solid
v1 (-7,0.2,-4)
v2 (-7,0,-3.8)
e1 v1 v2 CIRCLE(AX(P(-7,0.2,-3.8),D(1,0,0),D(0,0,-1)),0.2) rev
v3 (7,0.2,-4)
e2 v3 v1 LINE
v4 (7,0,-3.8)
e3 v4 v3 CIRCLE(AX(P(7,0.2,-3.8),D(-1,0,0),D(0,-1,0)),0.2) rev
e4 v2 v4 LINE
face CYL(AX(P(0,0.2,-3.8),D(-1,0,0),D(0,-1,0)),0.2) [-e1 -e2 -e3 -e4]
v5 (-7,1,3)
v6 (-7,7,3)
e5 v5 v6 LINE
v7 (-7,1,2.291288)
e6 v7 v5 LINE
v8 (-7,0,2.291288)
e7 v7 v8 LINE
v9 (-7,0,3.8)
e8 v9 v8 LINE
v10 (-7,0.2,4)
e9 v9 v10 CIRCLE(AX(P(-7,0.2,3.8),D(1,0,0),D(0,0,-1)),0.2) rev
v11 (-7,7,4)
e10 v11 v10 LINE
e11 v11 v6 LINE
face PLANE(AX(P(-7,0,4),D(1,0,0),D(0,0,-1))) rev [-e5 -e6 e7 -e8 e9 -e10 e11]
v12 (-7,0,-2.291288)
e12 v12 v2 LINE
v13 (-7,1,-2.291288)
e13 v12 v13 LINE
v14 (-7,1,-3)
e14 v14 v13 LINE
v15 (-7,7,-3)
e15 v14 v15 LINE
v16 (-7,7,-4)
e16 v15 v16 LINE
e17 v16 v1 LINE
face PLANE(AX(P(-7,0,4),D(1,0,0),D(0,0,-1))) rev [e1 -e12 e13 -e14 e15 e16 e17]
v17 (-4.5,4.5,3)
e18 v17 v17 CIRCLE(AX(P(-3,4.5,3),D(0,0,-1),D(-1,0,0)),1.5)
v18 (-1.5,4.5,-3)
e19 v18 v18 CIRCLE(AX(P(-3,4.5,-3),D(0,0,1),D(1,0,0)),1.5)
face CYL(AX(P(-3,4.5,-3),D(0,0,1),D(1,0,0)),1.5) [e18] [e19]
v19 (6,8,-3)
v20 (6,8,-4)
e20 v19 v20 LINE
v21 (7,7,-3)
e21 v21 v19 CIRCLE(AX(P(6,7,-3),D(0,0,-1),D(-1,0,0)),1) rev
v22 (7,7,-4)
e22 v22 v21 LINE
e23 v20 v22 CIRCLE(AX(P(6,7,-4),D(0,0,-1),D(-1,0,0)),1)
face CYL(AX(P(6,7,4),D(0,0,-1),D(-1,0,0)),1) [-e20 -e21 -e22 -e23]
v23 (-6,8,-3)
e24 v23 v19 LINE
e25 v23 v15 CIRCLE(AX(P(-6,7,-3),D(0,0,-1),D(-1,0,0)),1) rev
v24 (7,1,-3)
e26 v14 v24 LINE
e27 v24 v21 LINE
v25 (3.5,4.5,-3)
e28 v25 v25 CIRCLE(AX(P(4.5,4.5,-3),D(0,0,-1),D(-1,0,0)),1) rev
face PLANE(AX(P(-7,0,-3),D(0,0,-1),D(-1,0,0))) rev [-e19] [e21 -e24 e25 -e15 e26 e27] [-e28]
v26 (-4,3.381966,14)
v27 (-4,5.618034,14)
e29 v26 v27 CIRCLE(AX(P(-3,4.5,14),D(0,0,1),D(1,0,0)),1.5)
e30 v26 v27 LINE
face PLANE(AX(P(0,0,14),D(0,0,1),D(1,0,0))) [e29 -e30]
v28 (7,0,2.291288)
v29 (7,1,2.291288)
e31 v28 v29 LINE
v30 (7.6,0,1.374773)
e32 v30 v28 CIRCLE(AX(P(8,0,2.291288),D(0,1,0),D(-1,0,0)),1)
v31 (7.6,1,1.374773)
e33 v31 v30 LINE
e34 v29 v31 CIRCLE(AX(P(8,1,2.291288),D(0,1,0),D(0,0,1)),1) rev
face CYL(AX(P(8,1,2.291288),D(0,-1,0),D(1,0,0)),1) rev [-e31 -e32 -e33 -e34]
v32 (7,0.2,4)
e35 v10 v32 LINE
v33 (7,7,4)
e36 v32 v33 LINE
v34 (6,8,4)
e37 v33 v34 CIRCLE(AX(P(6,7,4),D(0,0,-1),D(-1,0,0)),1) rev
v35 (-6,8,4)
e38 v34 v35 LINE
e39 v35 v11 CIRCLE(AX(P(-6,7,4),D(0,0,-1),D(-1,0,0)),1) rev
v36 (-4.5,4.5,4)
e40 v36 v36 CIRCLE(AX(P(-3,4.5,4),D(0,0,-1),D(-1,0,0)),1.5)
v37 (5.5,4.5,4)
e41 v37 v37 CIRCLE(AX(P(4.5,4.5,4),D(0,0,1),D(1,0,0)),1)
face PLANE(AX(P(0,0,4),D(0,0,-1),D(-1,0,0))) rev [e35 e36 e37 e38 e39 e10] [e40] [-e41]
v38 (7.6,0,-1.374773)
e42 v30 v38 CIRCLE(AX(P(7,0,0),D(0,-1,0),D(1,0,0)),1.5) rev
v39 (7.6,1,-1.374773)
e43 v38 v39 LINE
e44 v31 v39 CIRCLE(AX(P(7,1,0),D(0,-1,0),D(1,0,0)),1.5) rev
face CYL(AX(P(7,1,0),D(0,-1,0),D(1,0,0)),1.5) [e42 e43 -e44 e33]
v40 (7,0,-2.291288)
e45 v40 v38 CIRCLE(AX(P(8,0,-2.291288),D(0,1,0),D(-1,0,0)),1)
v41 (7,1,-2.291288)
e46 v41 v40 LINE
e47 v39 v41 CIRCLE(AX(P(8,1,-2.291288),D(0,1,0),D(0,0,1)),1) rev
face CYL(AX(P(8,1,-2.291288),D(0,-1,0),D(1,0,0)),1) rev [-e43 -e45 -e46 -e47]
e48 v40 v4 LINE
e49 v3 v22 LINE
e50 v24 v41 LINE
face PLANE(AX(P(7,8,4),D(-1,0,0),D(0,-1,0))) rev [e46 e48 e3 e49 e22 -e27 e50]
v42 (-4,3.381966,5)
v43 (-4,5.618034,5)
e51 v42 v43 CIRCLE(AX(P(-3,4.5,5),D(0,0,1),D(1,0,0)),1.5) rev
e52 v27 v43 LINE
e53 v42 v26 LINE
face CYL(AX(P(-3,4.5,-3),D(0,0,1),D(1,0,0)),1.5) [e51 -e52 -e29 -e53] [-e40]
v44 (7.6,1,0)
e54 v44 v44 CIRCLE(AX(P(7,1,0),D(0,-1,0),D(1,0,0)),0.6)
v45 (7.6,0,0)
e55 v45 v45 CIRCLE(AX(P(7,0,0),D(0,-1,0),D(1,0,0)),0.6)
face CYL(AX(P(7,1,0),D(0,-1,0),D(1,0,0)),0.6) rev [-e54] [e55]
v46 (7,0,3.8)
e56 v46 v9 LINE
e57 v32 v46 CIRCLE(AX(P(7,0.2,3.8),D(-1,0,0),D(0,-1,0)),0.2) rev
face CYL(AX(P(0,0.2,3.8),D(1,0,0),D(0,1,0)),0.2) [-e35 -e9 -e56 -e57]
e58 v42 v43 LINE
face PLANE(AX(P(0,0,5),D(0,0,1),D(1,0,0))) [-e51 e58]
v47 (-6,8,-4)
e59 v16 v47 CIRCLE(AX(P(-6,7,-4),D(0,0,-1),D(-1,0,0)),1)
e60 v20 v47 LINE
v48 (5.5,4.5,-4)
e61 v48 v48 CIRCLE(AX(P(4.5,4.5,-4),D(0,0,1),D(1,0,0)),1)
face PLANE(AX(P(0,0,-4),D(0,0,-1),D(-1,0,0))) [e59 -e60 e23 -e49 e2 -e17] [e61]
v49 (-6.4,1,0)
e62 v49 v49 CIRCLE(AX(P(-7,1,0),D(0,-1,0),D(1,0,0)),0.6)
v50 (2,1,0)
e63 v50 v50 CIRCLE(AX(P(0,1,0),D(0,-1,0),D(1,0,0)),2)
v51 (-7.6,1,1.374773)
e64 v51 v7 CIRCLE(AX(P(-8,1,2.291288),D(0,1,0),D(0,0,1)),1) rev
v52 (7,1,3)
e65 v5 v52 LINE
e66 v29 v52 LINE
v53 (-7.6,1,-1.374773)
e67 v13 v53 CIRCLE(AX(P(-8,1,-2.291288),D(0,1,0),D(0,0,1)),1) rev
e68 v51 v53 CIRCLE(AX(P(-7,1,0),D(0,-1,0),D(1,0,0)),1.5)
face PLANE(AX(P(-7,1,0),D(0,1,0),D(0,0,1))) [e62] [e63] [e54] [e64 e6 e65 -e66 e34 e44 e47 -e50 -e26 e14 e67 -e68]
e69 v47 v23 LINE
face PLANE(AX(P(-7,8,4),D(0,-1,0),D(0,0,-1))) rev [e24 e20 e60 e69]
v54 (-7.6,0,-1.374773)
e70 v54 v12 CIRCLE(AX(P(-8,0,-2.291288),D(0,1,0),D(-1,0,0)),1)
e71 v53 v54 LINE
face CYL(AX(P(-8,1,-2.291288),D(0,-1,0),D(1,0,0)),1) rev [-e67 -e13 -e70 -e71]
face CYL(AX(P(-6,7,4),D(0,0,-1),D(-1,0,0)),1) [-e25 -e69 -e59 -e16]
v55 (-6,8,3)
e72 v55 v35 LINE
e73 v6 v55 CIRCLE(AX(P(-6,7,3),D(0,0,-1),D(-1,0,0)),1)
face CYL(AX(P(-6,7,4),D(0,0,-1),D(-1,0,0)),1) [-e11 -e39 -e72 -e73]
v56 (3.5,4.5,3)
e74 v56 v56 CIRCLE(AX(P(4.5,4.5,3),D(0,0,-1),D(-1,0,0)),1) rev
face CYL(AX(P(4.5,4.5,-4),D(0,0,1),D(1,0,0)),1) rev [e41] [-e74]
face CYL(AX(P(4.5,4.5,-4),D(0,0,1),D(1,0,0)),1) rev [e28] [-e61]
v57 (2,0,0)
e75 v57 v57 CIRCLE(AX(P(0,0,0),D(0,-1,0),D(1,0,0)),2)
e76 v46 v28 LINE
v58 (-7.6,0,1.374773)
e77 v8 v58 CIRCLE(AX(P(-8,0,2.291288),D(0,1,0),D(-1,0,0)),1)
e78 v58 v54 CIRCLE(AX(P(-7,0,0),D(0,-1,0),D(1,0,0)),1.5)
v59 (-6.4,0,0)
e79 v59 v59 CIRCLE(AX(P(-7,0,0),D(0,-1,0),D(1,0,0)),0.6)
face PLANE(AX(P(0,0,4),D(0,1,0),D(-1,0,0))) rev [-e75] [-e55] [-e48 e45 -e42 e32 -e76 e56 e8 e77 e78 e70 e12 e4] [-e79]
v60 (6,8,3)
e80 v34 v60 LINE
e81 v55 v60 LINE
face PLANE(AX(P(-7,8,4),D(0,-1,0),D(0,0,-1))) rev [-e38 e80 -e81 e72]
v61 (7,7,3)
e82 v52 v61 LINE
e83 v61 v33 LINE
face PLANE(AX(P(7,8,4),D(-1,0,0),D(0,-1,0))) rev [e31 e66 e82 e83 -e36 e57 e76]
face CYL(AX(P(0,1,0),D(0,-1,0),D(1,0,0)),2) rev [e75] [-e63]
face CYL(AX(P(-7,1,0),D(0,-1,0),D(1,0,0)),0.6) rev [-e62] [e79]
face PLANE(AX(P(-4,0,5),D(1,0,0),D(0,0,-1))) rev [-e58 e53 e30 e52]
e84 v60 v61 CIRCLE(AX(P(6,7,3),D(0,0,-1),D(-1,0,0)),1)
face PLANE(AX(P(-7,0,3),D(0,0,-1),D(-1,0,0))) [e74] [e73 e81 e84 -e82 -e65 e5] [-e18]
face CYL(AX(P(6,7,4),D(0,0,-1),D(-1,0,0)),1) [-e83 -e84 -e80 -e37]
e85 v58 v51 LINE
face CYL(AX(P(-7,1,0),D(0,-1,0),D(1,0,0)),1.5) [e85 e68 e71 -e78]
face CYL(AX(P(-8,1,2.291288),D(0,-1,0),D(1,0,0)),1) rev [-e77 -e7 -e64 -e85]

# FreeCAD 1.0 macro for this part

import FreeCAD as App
import Part
import Sketcher
from FreeCAD import Vector
Q = App.Units.Quantity


def edges_at(feature, points):
    """Names of the edges that pass closest to the given points."""
    edges = feature.Shape.Edges
    near = lambda p: min(range(len(edges)), key=lambda i: edges[i].distToShape(Part.Vertex(*p))[0])
    return sorted({f"Edge{near(p) + 1}" for p in points})


def add_polygon(sketch, points):
    """Adds a closed chain of lines whose ends are joined by coincident constraints."""
    first, n = sketch.GeometryCount, len(points)
    for a, b in zip(points, points[1:] + points[:1]):
        sketch.addGeometry(Part.LineSegment(App.Vector(*a, 0), App.Vector(*b, 0)), False)
    for i in range(n):
        sketch.addConstraint(Sketcher.Constraint("Coincident", first + i, 2, first + (i + 1) % n, 1))

doc = App.newDocument("Part")
body = doc.addObject("PartDesign::Body", "Body")

sketch1 = body.newObject("Sketcher::SketchObject", "Sketch")
sketch1.AttachmentSupport = (doc.getObject("XY_Plane"), [""])
sketch1.MapMode = "FlatFace"
add_polygon(sketch1, [(-7, 0), (7, 0), (7, 8), (-7, 8)])
sketch1.addConstraint(Sketcher.Constraint("Horizontal", 0))
sketch1.addConstraint(Sketcher.Constraint("Vertical", 1))
sketch1.addConstraint(Sketcher.Constraint("Horizontal", 2))
sketch1.addConstraint(Sketcher.Constraint("Vertical", 3))
sketch1.addConstraint(Sketcher.Constraint("Symmetric", 0, 2, 3, 2, -1, 1))
sketch1.addConstraint(Sketcher.Constraint("DistanceX", 0, 1, 0, 2, Q("14 mm")))
sketch1.addConstraint(Sketcher.Constraint("DistanceY", 1, 1, 1, 2, Q("8 mm")))
pad1 = body.newObject("PartDesign::Pad", "Pad")
pad1.Profile = sketch1
pad1.Length = 8
pad1.Midplane = True

sketch2 = body.newObject("Sketcher::SketchObject", "Sketch001")
sketch2.AttachmentSupport = (doc.getObject("XY_Plane"), [""])
sketch2.MapMode = "FlatFace"
sketch2.addGeometry(Part.Circle(Vector(4.5, 4.5, 0), Vector(0, 0, 1), 1), False)
sketch2.addConstraint(Sketcher.Constraint("Diameter", 0, Q("2 mm")))
sketch2.addConstraint(Sketcher.Constraint("DistanceX", -1, 1, 0, 3, Q("4.5 mm")))
sketch2.addConstraint(Sketcher.Constraint("DistanceY", -1, 1, 0, 3, Q("4.5 mm")))
pocket1 = body.newObject("PartDesign::Pocket", "Pocket")
pocket1.Profile = sketch2
pocket1.Type = "ThroughAll"
pocket1.Midplane = True

sketch3 = body.newObject("Sketcher::SketchObject", "Sketch002")
sketch3.AttachmentSupport = (doc.getObject("YZ_Plane"), [""])
sketch3.MapMode = "FlatFace"
add_polygon(sketch3, [(10, 3), (1, 3), (1, -3), (10, -3)])
sketch3.addConstraint(Sketcher.Constraint("Horizontal", 0))
sketch3.addConstraint(Sketcher.Constraint("Vertical", 1))
sketch3.addConstraint(Sketcher.Constraint("Horizontal", 2))
sketch3.addConstraint(Sketcher.Constraint("Vertical", 3))
sketch3.addConstraint(Sketcher.Constraint("DistanceY", 1, 2, 1, 1, Q("6 mm")))
sketch3.addConstraint(Sketcher.Constraint("DistanceX", -1, 1, 0, 2, Q("1 mm")))
sketch3.addConstraint(Sketcher.Constraint("DistanceY", -1, 1, 0, 2, Q("3 mm")))
sketch3.addConstraint(Sketcher.Constraint("DistanceX", 0, 2, 0, 1, Q("8.732029 mm")))
pocket2 = body.newObject("PartDesign::Pocket", "Pocket001")
pocket2.Profile = sketch3
pocket2.Type = "ThroughAll"
pocket2.Midplane = True
doc.recompute()

fillet = body.newObject("PartDesign::Fillet", "Fillet")
fillet.Base = (pocket2, edges_at(pocket2, [(0, 0, 4), (0, 0, -4)]))
fillet.Radius = 0.2
doc.recompute()

fillet2 = body.newObject("PartDesign::Fillet", "Fillet001")
fillet2.Base = (fillet, edges_at(fillet, [
    (-7, 8, -3.5),
    (7, 8, -3.5),
    (-7, 8, 3.5),
    (7, 8, 3.5),
]))
fillet2.Radius = 1

sketch4 = body.newObject("Sketcher::SketchObject", "Sketch003")
sketch4.AttachmentSupport = (doc.getObject("XY_Plane"), [""])
sketch4.MapMode = "FlatFace"
sketch4.addGeometry(Part.Circle(Vector(-3, 4.5, 0), Vector(0, 0, 1), 1.5), False)
sketch4.addConstraint(Sketcher.Constraint("Diameter", 0, Q("3 mm")))
sketch4.addConstraint(Sketcher.Constraint("DistanceX", 0, 3, -1, 1, Q("3 mm")))
sketch4.addConstraint(Sketcher.Constraint("DistanceY", -1, 1, 0, 3, Q("4.5 mm")))
pad2 = body.newObject("PartDesign::Pad", "Pad001")
pad2.Profile = sketch4
pad2.Type = "TwoLengths"
pad2.Length = 14
pad2.Length2 = 3

sketch5 = body.newObject("Sketcher::SketchObject", "Sketch004")
sketch5.AttachmentSupport = (doc.getObject("XY_Plane"), [""])
sketch5.MapMode = "FlatFace"
sketch5.AttachmentOffset = App.Placement(Vector(0, 0, 14), App.Rotation())
add_polygon(sketch5, [(-4, 6.1), (-5, 6.1), (-5, 2.5), (-4, 2.5)])
sketch5.addConstraint(Sketcher.Constraint("Horizontal", 0))
sketch5.addConstraint(Sketcher.Constraint("Vertical", 1))
sketch5.addConstraint(Sketcher.Constraint("Horizontal", 2))
sketch5.addConstraint(Sketcher.Constraint("Vertical", 3))
sketch5.addConstraint(Sketcher.Constraint("DistanceX", 2, 2, -1, 1, Q("4 mm")))
sketch5.addConstraint(Sketcher.Constraint("DistanceY", -1, 1, 1, 2, Q("2.5 mm")))
sketch5.addConstraint(Sketcher.Constraint("DistanceX", 0, 2, 0, 1, Q("0.956444 mm")))
sketch5.addConstraint(Sketcher.Constraint("DistanceY", 1, 2, 1, 1, Q("3.560686 mm")))
pocket3 = body.newObject("PartDesign::Pocket", "Pocket002")
pocket3.Profile = sketch5
pocket3.Length = 9

sketch6 = body.newObject("Sketcher::SketchObject", "Sketch005")
sketch6.AttachmentSupport = (doc.getObject("XZ_Plane"), [""])
sketch6.MapMode = "FlatFace"
sketch6.addGeometry(Part.Circle(Vector(-7, 0, 0), Vector(0, 0, 1), 1.5), False)
sketch6.addGeometry(Part.Circle(Vector(7, 0, 0), Vector(0, 0, 1), 1.5), False)
sketch6.addConstraint(Sketcher.Constraint("Equal", 0, 1))
sketch6.addConstraint(Sketcher.Constraint("Symmetric", 0, 3, 1, 3, -1, 1))
sketch6.addConstraint(Sketcher.Constraint("PointOnObject", 0, 3, -1))
sketch6.addConstraint(Sketcher.Constraint("Diameter", 0, Q("3 mm")))
sketch6.addConstraint(Sketcher.Constraint("DistanceX", 0, 3, -1, 1, Q("7 mm")))
pad3 = body.newObject("PartDesign::Pad", "Pad002")
pad3.Profile = sketch6
pad3.Length = 1
pad3.Reversed = True

sketch7 = body.newObject("Sketcher::SketchObject", "Sketch006")
sketch7.AttachmentSupport = (doc.getObject("XZ_Plane"), [""])
sketch7.MapMode = "FlatFace"
sketch7.addGeometry(Part.Circle(Vector(-7, 0, 0), Vector(0, 0, 1), 0.6), False)
sketch7.addGeometry(Part.Circle(Vector(7, 0, 0), Vector(0, 0, 1), 0.6), False)
sketch7.addConstraint(Sketcher.Constraint("Equal", 0, 1))
sketch7.addConstraint(Sketcher.Constraint("Symmetric", 0, 3, 1, 3, -1, 1))
sketch7.addConstraint(Sketcher.Constraint("PointOnObject", 0, 3, -1))
sketch7.addConstraint(Sketcher.Constraint("Diameter", 0, Q("1.2 mm")))
sketch7.addConstraint(Sketcher.Constraint("DistanceX", 0, 3, -1, 1, Q("7 mm")))
pocket4 = body.newObject("PartDesign::Pocket", "Pocket003")
pocket4.Profile = sketch7
pocket4.Length = 1
doc.recompute()

fillet3 = body.newObject("PartDesign::Fillet", "Fillet002")
fillet3.Base = (pocket4, edges_at(pocket4, [
    (7, 0.5, -1.5),
    (7, 0.5, 1.5),
    (-7, 0.5, 1.5),
    (-7, 0.5, -1.5),
]))
fillet3.Radius = 1

sketch8 = body.newObject("Sketcher::SketchObject", "Sketch007")
sketch8.AttachmentSupport = (doc.getObject("XZ_Plane"), [""])
sketch8.MapMode = "FlatFace"
sketch8.addGeometry(Part.Circle(Vector(0, 0, 0), Vector(0, 0, 1), 2), False)
sketch8.addConstraint(Sketcher.Constraint("Coincident", 0, 3, -1, 1))
sketch8.addConstraint(Sketcher.Constraint("Diameter", 0, Q("4 mm")))
pocket5 = body.newObject("PartDesign::Pocket", "Pocket004")
pocket5.Profile = sketch8
pocket5.Length = 1

doc.recompute()
